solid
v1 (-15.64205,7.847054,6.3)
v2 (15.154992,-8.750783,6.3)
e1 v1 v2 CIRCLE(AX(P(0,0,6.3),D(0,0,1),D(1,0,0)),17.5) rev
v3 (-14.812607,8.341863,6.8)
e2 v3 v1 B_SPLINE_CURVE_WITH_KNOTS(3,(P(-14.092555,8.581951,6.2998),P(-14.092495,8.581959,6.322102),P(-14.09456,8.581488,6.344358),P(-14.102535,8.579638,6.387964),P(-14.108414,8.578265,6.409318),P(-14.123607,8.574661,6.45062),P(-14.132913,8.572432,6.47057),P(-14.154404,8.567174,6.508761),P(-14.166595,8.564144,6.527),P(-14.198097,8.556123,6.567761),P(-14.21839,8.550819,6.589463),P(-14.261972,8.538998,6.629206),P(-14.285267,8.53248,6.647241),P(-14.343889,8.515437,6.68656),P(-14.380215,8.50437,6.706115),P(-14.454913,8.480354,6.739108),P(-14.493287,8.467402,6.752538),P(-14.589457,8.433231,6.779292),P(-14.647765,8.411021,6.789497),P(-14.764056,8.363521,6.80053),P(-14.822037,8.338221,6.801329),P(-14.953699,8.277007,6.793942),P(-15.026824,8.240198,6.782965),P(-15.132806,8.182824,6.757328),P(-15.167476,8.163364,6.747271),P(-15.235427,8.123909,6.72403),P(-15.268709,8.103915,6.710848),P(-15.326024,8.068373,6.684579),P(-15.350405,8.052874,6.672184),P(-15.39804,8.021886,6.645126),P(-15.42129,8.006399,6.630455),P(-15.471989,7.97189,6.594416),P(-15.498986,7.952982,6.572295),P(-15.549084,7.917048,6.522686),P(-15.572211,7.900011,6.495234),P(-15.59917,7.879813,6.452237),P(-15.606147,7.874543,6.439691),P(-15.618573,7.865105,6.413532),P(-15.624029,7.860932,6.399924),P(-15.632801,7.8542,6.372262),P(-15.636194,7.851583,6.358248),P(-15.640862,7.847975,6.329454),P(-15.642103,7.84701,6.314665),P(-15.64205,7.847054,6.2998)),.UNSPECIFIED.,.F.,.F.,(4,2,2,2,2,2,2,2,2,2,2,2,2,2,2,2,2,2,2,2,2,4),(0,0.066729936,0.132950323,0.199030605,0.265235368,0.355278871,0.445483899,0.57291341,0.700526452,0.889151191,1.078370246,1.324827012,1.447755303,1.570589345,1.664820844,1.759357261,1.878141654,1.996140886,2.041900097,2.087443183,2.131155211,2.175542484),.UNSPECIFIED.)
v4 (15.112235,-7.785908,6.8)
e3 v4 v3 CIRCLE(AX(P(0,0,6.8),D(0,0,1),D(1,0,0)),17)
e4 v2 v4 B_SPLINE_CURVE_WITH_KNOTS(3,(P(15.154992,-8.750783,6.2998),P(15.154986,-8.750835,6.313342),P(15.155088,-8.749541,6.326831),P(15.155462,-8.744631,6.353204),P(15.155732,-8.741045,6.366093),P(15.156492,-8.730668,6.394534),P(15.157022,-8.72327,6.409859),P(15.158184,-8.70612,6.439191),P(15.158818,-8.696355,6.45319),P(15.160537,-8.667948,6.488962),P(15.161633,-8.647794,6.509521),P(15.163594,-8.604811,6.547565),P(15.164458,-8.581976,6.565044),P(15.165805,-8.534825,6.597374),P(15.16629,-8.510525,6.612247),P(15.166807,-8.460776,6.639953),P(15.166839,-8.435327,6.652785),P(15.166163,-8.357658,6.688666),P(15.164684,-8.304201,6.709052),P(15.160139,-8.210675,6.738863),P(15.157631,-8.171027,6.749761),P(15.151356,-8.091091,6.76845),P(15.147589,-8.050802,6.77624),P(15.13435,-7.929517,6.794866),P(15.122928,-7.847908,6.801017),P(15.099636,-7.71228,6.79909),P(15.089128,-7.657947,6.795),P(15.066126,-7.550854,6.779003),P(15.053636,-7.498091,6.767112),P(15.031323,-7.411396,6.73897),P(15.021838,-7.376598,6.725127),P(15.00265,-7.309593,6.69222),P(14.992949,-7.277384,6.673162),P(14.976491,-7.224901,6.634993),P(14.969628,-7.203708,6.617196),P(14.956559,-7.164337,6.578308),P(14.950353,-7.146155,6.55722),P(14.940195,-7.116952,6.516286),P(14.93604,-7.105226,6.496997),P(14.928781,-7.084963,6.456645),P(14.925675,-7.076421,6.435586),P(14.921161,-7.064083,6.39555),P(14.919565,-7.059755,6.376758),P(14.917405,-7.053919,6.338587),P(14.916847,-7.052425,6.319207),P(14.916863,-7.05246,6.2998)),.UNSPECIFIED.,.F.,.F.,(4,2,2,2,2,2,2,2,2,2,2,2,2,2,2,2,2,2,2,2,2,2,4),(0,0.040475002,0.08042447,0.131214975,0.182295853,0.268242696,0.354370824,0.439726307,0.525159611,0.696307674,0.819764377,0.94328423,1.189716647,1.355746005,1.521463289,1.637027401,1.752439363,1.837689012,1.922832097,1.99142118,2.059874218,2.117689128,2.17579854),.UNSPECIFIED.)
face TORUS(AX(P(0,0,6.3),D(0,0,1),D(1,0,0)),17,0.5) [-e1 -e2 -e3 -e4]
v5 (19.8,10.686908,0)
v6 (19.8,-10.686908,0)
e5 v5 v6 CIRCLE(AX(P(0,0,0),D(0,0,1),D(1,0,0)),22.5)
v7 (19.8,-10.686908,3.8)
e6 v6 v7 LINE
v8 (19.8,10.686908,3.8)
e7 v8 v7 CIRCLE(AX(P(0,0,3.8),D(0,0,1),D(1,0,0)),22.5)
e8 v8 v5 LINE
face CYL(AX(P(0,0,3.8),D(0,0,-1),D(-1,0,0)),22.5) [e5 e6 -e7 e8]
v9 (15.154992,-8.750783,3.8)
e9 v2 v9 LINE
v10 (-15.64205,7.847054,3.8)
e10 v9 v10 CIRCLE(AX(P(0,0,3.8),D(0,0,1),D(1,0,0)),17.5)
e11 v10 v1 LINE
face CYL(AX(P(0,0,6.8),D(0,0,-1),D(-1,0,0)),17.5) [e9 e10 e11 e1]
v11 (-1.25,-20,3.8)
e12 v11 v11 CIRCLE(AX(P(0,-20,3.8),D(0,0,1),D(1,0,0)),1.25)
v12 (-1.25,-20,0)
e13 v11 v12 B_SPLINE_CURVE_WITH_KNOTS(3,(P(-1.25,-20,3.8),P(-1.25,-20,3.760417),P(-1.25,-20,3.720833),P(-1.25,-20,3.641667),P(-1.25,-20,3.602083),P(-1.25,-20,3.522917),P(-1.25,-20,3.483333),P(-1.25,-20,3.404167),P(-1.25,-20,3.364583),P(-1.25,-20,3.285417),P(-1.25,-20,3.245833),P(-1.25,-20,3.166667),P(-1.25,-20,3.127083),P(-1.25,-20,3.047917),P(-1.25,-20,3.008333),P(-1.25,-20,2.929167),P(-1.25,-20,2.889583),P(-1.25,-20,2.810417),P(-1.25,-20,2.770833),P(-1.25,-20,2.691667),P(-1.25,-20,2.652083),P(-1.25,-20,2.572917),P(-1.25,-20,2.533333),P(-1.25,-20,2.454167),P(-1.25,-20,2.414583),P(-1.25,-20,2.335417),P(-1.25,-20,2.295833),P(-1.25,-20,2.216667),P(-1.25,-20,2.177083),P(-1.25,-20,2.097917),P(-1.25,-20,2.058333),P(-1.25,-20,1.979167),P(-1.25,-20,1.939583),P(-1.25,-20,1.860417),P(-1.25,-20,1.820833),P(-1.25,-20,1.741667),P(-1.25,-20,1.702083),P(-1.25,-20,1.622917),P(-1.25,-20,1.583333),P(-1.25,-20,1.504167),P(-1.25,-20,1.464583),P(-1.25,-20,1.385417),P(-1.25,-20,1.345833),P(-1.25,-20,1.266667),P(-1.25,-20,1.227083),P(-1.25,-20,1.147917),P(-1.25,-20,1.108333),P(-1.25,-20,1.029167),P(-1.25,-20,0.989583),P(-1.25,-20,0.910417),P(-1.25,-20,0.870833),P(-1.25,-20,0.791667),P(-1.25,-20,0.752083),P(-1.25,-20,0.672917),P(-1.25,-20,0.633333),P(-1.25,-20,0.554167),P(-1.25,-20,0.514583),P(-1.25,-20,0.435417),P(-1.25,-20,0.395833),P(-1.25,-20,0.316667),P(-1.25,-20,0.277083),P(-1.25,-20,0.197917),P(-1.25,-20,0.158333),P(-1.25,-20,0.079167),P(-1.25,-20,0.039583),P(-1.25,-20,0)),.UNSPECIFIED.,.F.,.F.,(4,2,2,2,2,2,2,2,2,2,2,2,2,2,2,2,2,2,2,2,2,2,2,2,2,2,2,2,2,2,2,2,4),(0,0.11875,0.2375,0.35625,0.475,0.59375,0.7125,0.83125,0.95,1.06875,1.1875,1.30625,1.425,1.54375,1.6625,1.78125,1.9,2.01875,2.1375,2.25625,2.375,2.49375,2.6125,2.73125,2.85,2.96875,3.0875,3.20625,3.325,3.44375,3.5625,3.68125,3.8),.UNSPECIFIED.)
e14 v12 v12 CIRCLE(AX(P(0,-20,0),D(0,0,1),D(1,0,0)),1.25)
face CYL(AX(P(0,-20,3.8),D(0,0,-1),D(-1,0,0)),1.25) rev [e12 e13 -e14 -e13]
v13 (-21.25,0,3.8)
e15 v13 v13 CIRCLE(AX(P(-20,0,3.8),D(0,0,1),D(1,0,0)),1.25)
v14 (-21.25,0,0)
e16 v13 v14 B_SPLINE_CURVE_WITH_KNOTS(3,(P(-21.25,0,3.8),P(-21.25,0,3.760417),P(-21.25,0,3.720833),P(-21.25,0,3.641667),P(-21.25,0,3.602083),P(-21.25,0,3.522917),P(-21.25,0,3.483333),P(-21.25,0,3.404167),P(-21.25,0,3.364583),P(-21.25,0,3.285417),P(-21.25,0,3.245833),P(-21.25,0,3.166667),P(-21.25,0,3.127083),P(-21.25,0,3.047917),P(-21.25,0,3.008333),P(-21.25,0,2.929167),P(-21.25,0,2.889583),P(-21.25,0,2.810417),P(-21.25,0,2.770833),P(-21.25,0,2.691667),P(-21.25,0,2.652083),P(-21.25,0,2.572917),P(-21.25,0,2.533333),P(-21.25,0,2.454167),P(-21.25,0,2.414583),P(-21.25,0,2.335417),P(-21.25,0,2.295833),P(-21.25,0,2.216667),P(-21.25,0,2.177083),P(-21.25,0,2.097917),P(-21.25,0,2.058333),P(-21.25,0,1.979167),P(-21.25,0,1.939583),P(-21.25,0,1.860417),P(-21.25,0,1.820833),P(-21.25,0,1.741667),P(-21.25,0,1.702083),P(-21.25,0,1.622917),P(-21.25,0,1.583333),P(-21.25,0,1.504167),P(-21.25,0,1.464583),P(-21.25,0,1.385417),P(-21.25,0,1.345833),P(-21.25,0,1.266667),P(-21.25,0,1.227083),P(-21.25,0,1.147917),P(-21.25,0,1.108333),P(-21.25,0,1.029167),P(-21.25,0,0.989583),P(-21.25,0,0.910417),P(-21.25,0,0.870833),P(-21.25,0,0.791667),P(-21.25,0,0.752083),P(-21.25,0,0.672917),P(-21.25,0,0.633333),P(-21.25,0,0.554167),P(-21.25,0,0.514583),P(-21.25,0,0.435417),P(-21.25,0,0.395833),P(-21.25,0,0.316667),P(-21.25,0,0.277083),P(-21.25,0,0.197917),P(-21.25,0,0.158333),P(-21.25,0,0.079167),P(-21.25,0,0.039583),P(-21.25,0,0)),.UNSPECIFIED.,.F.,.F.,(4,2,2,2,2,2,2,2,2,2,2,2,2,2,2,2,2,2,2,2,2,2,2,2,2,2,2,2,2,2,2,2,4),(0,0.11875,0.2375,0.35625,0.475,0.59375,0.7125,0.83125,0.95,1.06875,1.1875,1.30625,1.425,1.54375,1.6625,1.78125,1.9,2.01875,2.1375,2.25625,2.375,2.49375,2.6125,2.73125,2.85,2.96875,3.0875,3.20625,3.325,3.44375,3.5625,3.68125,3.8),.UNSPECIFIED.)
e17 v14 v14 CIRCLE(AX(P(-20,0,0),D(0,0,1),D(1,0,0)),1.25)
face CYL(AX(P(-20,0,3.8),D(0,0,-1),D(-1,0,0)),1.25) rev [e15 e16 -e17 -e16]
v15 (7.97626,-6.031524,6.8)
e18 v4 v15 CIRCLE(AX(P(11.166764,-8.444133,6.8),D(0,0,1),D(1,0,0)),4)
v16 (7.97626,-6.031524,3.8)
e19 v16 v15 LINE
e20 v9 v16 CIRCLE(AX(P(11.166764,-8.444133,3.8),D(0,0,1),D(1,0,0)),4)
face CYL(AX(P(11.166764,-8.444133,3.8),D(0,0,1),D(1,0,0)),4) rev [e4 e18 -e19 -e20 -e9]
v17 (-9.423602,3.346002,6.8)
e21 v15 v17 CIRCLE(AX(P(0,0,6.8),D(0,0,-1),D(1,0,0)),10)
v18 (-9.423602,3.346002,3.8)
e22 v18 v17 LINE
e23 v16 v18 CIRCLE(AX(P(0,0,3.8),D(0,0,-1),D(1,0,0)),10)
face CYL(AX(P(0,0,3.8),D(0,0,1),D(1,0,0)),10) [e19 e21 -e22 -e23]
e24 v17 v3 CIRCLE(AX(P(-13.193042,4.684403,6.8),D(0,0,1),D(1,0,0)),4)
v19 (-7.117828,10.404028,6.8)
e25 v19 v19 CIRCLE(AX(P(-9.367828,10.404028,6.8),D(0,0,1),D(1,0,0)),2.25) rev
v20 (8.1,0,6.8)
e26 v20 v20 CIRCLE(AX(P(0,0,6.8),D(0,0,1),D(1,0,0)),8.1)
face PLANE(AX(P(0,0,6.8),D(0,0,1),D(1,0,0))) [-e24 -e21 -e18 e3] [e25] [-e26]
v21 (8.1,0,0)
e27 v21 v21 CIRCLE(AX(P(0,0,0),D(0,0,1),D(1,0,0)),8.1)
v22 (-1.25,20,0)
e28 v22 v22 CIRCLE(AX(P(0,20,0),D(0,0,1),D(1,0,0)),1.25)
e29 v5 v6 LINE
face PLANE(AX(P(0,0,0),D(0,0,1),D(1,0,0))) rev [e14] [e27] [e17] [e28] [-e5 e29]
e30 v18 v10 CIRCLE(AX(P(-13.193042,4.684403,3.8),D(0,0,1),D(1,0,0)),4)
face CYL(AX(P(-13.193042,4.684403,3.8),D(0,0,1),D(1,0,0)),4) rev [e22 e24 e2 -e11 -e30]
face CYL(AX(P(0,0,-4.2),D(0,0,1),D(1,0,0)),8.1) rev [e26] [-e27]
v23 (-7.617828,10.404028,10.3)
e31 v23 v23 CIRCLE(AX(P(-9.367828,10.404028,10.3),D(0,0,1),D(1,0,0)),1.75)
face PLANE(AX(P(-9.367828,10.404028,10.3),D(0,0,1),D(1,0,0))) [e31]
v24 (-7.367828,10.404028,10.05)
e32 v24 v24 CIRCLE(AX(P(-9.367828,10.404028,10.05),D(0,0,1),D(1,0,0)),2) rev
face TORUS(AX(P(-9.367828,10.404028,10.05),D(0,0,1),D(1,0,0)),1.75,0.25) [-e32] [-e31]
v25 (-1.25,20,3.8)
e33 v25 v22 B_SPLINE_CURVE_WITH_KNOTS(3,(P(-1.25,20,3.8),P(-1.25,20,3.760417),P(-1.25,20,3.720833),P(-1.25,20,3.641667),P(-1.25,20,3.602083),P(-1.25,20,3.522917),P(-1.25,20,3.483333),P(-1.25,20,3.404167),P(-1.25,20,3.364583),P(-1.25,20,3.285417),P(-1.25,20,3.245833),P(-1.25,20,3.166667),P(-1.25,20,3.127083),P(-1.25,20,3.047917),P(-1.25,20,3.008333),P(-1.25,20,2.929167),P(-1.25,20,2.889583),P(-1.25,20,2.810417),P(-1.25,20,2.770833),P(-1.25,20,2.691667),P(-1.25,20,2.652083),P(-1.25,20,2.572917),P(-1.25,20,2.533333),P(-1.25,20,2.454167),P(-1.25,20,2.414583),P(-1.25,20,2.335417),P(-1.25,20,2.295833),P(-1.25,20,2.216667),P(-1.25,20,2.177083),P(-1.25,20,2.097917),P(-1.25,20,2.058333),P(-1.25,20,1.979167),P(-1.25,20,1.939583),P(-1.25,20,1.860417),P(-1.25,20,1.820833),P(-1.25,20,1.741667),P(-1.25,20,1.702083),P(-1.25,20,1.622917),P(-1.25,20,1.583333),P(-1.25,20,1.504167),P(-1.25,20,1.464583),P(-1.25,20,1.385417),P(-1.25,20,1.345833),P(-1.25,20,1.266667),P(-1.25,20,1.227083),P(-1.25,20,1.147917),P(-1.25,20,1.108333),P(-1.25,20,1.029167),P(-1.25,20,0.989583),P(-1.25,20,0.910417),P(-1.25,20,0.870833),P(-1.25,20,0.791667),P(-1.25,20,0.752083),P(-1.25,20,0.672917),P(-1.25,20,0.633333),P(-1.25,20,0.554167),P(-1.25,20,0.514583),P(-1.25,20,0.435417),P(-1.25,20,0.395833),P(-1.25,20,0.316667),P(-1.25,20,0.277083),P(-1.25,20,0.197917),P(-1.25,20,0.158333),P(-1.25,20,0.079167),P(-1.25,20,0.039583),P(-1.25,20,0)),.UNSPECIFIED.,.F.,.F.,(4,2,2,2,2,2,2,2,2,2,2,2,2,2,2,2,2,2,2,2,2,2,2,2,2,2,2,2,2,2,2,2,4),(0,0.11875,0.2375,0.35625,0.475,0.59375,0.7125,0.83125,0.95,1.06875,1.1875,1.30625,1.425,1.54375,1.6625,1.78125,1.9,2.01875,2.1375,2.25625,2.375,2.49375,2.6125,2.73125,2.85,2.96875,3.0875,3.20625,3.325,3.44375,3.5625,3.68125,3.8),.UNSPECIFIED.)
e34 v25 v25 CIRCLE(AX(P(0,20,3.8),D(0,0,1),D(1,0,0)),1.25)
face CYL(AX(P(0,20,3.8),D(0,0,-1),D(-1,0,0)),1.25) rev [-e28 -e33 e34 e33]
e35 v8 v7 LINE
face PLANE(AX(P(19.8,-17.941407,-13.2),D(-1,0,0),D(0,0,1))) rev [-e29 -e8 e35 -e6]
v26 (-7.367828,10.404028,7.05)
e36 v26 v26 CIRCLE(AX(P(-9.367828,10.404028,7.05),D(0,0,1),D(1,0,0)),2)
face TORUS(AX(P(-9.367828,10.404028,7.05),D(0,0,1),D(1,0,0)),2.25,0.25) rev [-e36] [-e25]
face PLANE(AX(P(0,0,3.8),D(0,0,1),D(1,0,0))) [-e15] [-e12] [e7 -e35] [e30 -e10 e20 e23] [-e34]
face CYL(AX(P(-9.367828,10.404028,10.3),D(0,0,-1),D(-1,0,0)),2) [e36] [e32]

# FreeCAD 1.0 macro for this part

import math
import FreeCAD as App
import Part
import Sketcher

V = App.Vector


def edges_at(feature, points):
    """Names of the edges that pass closest to the given points."""
    edges = feature.Shape.Edges
    near = lambda p: min(range(len(edges)), key=lambda i: edges[i].distToShape(Part.Vertex(*p))[0])
    return sorted({f"Edge{near(p) + 1}" for p in points})

doc = App.newDocument("Part")
params = doc.addObject("Spreadsheet::Sheet", "Params")
for row, (alias, value) in enumerate([
    ("sketch1_diameter", "45 mm"),
    ("sketch1_diameter2", "2.5 mm"),
    ("pad1_length", "3.8 mm"),
    ("sketch2_diameter", "35 mm"),
    ("pad2_length", "3 mm"),
    ("sketch3_diameter", "4 mm"),
    ("pad3_length", "3.5 mm"),
    ("fillet_radius", "0.5 mm"),
    ("fillet2_radius", "0.25 mm"),
    ("sketch4_radius", "18 mm"),
    ("sketch4_radius2", "4 mm"),
    ("pocket1_length", "3 mm"),
    ("sketch5_diameter", "16.2 mm"),
    ("pocket2_length", "11 mm"),
    ("pocket3_length", "17 mm"),
], start=1):
    params.set(f"A{row}", alias)
    params.set(f"B{row}", "=" + value)
    params.setAlias(f"B{row}", alias)

body = doc.addObject("PartDesign::Body", "Body")

sketch1 = body.newObject("Sketcher::SketchObject", "Sketch")
sketch1.AttachmentSupport = (doc.getObject("XY_Plane"), [""])
sketch1.MapMode = "FlatFace"
sketch1.addGeometry([
    Part.Circle(V(0, 0, 0), V(0, 0, 1), 22.5),
    Part.Circle(V(0, 20, 0), V(0, 0, 1), 1.2),
    Part.Circle(V(0, -20, 0), V(0, 0, 1), 1.2),
    Part.Circle(V(-20, 0, 0), V(0, 0, 1), 1.2),
], False)
sketch1.addConstraint([
    Sketcher.Constraint("Coincident", 0, 3, -1, 1),
    Sketcher.Constraint("Equal", 1, 2),
    Sketcher.Constraint("Equal", 2, 3),
    Sketcher.Constraint("Symmetric", 1, 3, 2, 3, -1, 1),
    Sketcher.Constraint("PointOnObject", 1, 3, -2),
    Sketcher.Constraint("PointOnObject", 3, 3, -1),
    Sketcher.Constraint("Diameter", 0, 45.0),
    Sketcher.Constraint("Diameter", 1, 2.5),
    Sketcher.Constraint("DistanceY", -1, 1, 1, 3, 20.0),
    Sketcher.Constraint("DistanceX", 3, 3, -1, 1, 20.0),
])
sketch1.setExpression("Constraints[6]", "Params.sketch1_diameter")
sketch1.setExpression("Constraints[7]", "Params.sketch1_diameter2")
pad1 = body.newObject("PartDesign::Pad", "Pad")
pad1.Profile = sketch1
pad1.setExpression("Length", "Params.pad1_length")

sketch2 = body.newObject("Sketcher::SketchObject", "Sketch001")
sketch2.AttachmentSupport = (doc.getObject("XY_Plane"), [""])
sketch2.MapMode = "FlatFace"
sketch2.AttachmentOffset = App.Placement(V(0, 0, 3.8), App.Rotation())
sketch2.addGeometry(Part.Circle(V(0, 0, 0), V(0, 0, 1), 18), False)
sketch2.addConstraint([
    Sketcher.Constraint("Coincident", 0, 3, -1, 1),
    Sketcher.Constraint("Diameter", 0, 35.0),
])
sketch2.setExpression("Constraints[1]", "Params.sketch2_diameter")
pad2 = body.newObject("PartDesign::Pad", "Pad001")
pad2.Profile = sketch2
pad2.setExpression("Length", "Params.pad2_length")

sketch3 = body.newObject("Sketcher::SketchObject", "Sketch002")
sketch3.AttachmentSupport = (doc.getObject("XY_Plane"), [""])
sketch3.MapMode = "FlatFace"
sketch3.AttachmentOffset = App.Placement(V(0, 0, 6.8), App.Rotation())
sketch3.addGeometry(Part.Circle(V(-9.4, 10.4, 0), V(0, 0, 1), 2), False)
sketch3.addConstraint([
    Sketcher.Constraint("Diameter", 0, 4.0),
    Sketcher.Constraint("DistanceX", 0, 3, -1, 1, 9.367828),
    Sketcher.Constraint("DistanceY", -1, 1, 0, 3, 10.404028),
])
sketch3.setExpression("Constraints[0]", "Params.sketch3_diameter")
pad3 = body.newObject("PartDesign::Pad", "Pad002")
pad3.Profile = sketch3
pad3.setExpression("Length", "Params.pad3_length")
doc.recompute()

fillet = body.newObject("PartDesign::Fillet", "Fillet")
fillet.Base = (pad3, edges_at(pad3, [(-17.5, 0, 6.8)]))
fillet.setExpression("Radius", "Params.fillet_radius")
doc.recompute()

fillet2 = body.newObject("PartDesign::Fillet", "Fillet001")
fillet2.Base = (fillet, edges_at(fillet, [(-11.368, 10.404, 6.8), (-11.368, 10.404, 10.3)]))
fillet2.setExpression("Radius", "Params.fillet2_radius")

sketch4 = body.newObject("Sketcher::SketchObject", "Sketch003")
sketch4.AttachmentSupport = (doc.getObject("XY_Plane"), [""])
sketch4.MapMode = "FlatFace"
sketch4.AttachmentOffset = App.Placement(V(0, 0, 6.8), App.Rotation())
sketch4.addGeometry([
    Part.ArcOfCircle(Part.Circle(V(0, 0, 0), V(0, 0, 1), 18), math.radians(160), math.radians(323)),
    Part.ArcOfCircle(Part.Circle(V(11.2, -8.4, 0), V(0, 0, 1), 4), math.radians(-37), math.radians(143)),
    Part.ArcOfCircle(Part.Circle(V(0, 0, 0), V(0, 0, 1), 10), math.radians(160), math.radians(323)),
    Part.ArcOfCircle(Part.Circle(V(-13.2, 4.7, 0), V(0, 0, 1), 4), math.radians(-20), math.radians(160)),
], False)
sketch4.addConstraint([
    Sketcher.Constraint("Tangent", 0, 2, 1, 1),
    Sketcher.Constraint("Tangent", 1, 2, 2, 2),
    Sketcher.Constraint("Tangent", 2, 1, 3, 1),
    Sketcher.Constraint("Tangent", 3, 2, 0, 1),
    Sketcher.Constraint("Coincident", 0, 3, -1, 1),
    Sketcher.Constraint("Coincident", 2, 3, -1, 1),
    Sketcher.Constraint("Radius", 0, 18.0),
    Sketcher.Constraint("Radius", 1, 4.0),
    Sketcher.Constraint("DistanceX", 2, 1, -1, 1, 9.423602),
    Sketcher.Constraint("DistanceX", -1, 1, 1, 2, 7.97626),
])
sketch4.setExpression("Constraints[6]", "Params.sketch4_radius")
sketch4.setExpression("Constraints[7]", "Params.sketch4_radius2")
pocket1 = body.newObject("PartDesign::Pocket", "Pocket")
pocket1.Profile = sketch4
pocket1.setExpression("Length", "Params.pocket1_length")

sketch5 = body.newObject("Sketcher::SketchObject", "Sketch004")
sketch5.AttachmentSupport = (doc.getObject("XY_Plane"), [""])
sketch5.MapMode = "FlatFace"
sketch5.AttachmentOffset = App.Placement(V(0, 0, 6.8), App.Rotation())
sketch5.addGeometry(Part.Circle(V(0, 0, 0), V(0, 0, 1), 8), False)
sketch5.addConstraint([
    Sketcher.Constraint("Coincident", 0, 3, -1, 1),
    Sketcher.Constraint("Diameter", 0, 16.2),
])
sketch5.setExpression("Constraints[1]", "Params.sketch5_diameter")
pocket2 = body.newObject("PartDesign::Pocket", "Pocket001")
pocket2.Profile = sketch5
pocket2.setExpression("Length", "Params.pocket2_length")

sketch6 = body.newObject("Sketcher::SketchObject", "Sketch005")
sketch6.AttachmentSupport = (doc.getObject("XY_Plane"), [""])
sketch6.MapMode = "FlatFace"
sketch6.AttachmentOffset = App.Placement(V(0, 0, 3.8), App.Rotation())
sketch6.addGeometry([
    Part.LineSegment(V(20, 16, 0), V(20, -18, 0)),
    Part.LineSegment(V(20, -18, 0), V(30, -18, 0)),
    Part.LineSegment(V(30, -18, 0), V(30, 16, 0)),
    Part.LineSegment(V(30, 16, 0), V(20, 16, 0)),
], False)
sketch6.addConstraint([
    Sketcher.Constraint("Coincident", 0, 2, 1, 1),
    Sketcher.Constraint("Coincident", 1, 2, 2, 1),
    Sketcher.Constraint("Coincident", 2, 2, 3, 1),
    Sketcher.Constraint("Coincident", 3, 2, 0, 1),
    Sketcher.Constraint("Vertical", 0),
    Sketcher.Constraint("Horizontal", 1),
    Sketcher.Constraint("Vertical", 2),
    Sketcher.Constraint("Horizontal", 3),
    Sketcher.Constraint("DistanceX", -1, 1, 0, 2, 19.8),
    Sketcher.Constraint("DistanceX", 1, 1, 1, 2, 10.283159),
    Sketcher.Constraint("DistanceY", 0, 2, 0, 1, 33.988548),
    Sketcher.Constraint("DistanceY", -1, 1, 2, 2, 16.047141),
])
pocket3 = body.newObject("PartDesign::Pocket", "Pocket002")
pocket3.Profile = sketch6
pocket3.setExpression("Length", "Params.pocket3_length")

doc.recompute()
